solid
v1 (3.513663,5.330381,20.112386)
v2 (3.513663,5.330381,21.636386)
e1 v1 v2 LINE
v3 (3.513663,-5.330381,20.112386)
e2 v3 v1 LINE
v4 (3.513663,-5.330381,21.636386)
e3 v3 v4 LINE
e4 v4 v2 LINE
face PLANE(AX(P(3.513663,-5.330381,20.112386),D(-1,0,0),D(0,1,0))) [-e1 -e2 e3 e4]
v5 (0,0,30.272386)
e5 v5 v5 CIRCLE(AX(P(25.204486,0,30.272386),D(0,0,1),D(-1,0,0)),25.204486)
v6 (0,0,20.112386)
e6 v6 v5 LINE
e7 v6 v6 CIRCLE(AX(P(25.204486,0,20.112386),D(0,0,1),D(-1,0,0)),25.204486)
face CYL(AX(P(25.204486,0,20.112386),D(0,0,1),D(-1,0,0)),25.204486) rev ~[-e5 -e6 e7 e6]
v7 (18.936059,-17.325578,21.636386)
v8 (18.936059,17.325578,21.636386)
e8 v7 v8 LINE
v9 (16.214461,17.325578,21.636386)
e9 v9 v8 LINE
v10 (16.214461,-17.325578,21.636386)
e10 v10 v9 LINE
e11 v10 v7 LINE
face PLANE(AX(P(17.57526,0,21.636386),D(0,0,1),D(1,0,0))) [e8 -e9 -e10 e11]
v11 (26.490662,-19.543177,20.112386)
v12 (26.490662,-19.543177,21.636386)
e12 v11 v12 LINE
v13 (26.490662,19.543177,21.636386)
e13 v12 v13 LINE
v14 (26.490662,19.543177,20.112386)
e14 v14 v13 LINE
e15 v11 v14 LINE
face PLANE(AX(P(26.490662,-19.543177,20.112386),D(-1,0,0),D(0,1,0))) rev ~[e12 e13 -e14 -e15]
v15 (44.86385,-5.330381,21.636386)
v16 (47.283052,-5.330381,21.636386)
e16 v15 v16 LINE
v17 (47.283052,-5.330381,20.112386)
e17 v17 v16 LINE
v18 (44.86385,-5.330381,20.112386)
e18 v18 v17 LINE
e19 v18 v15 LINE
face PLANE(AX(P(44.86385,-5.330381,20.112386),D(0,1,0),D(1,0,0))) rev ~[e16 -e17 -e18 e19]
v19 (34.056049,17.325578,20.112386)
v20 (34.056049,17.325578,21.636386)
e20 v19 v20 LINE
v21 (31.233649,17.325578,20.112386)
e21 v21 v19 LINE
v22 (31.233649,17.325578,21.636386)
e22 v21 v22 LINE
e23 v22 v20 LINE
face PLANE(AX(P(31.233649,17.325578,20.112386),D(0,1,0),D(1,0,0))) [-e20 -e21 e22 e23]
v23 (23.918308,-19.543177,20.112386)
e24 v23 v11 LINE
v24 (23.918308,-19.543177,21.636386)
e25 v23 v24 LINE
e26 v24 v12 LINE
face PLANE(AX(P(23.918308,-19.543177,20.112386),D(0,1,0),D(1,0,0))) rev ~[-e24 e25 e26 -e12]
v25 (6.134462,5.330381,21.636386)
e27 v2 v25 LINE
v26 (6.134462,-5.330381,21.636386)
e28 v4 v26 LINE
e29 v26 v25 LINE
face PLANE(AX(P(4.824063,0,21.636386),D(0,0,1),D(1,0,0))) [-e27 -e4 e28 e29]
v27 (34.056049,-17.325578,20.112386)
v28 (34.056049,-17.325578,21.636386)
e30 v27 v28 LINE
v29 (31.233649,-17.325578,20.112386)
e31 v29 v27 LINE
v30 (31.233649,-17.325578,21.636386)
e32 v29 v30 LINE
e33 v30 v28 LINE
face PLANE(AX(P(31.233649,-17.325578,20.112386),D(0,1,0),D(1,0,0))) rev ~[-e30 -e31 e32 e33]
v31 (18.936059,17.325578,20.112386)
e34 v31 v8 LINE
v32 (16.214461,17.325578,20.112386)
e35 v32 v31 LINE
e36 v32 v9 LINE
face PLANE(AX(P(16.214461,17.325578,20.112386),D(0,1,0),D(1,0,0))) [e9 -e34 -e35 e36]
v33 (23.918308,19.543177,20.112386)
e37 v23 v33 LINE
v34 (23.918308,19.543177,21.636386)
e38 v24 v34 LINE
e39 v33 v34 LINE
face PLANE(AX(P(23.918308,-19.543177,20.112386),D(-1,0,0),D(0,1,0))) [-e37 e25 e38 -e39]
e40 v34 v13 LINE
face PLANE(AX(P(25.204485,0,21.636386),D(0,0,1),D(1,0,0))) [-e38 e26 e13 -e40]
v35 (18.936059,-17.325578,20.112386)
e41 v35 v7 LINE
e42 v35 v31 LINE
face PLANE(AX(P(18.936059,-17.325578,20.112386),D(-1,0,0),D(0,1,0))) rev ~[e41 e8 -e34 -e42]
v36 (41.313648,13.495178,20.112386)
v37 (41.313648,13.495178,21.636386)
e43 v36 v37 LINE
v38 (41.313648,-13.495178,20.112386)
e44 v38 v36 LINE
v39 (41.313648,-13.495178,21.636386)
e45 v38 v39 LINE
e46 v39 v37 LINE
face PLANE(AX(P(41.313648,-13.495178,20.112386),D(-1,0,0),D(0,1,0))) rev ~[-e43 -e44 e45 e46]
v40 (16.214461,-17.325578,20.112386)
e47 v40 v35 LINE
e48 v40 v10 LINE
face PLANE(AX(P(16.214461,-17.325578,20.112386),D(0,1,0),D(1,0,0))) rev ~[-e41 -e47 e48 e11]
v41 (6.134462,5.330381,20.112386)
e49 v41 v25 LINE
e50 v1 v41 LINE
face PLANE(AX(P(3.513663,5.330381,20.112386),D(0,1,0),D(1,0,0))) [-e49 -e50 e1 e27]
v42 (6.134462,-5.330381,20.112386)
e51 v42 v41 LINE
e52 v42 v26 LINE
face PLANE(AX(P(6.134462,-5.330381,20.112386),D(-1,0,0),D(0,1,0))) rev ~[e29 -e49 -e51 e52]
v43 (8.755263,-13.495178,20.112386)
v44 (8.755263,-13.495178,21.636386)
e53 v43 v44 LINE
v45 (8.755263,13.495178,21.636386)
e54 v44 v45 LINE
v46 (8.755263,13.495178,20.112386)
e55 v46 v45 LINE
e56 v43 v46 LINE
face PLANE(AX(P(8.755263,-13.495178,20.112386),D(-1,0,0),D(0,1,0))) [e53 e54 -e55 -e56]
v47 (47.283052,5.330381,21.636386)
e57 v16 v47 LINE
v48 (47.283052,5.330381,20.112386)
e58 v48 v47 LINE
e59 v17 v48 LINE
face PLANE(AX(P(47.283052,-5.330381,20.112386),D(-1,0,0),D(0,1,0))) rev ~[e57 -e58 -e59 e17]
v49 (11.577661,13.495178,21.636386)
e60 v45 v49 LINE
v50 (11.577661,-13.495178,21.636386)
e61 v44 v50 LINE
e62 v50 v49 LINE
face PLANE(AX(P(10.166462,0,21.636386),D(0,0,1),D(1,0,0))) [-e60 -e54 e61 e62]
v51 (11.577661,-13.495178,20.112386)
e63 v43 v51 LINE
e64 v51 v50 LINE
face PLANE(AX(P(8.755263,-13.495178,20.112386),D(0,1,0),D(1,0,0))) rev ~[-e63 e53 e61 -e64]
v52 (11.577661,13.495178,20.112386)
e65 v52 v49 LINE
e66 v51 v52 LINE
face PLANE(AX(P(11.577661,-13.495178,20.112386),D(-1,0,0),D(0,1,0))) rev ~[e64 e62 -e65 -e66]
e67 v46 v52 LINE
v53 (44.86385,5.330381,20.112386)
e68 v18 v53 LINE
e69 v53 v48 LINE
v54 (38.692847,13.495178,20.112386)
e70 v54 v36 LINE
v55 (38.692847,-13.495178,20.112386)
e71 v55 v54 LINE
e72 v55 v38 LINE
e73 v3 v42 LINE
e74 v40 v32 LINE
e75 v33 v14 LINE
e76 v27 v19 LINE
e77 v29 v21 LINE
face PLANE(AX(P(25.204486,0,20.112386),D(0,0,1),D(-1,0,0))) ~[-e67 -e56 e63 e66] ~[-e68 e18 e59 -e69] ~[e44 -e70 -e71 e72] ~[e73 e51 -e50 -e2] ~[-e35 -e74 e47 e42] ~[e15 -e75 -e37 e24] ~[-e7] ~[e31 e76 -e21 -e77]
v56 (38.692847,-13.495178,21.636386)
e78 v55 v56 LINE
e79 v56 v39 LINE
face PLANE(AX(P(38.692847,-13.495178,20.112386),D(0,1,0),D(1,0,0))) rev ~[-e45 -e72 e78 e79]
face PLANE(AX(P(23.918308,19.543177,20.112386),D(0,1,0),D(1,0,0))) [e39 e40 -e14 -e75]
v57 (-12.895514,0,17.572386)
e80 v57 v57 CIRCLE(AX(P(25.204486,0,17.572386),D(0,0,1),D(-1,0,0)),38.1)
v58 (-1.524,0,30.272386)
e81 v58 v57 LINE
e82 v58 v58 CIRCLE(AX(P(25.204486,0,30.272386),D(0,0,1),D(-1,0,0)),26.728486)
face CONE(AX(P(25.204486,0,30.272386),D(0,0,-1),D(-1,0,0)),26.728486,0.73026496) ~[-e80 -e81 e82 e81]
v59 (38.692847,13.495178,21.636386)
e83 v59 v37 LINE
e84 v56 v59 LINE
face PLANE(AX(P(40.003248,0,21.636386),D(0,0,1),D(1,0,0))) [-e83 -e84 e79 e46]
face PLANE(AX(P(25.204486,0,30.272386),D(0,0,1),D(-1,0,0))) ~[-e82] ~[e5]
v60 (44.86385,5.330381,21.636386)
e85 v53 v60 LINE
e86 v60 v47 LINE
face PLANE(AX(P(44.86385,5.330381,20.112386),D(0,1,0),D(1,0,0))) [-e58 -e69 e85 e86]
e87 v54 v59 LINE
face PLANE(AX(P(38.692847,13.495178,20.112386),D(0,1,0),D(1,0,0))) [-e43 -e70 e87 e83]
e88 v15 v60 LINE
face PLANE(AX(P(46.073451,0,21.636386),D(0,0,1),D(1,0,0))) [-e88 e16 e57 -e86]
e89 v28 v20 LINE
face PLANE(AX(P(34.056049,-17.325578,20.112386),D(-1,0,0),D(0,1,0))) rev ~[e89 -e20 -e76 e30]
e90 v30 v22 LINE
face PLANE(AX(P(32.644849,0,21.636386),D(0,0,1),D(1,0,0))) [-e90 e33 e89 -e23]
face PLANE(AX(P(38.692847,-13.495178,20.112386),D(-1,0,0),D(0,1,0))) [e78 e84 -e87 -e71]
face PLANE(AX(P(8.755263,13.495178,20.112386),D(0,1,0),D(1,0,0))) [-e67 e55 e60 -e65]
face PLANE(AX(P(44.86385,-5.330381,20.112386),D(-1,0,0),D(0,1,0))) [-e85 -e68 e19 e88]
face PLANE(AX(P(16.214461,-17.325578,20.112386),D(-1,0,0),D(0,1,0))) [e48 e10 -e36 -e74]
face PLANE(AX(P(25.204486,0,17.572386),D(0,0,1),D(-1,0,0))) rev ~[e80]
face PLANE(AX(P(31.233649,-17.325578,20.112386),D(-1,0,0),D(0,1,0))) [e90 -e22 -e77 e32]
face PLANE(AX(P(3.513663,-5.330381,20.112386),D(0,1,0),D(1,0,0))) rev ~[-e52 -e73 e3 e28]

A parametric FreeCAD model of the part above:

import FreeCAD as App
import Part
import Sketcher
from FreeCAD import Vector
Q = App.Units.Quantity


def add_polygon(sketch, points):
    """Adds a closed chain of lines whose ends are joined by coincident constraints."""
    first, n = sketch.GeometryCount, len(points)
    for a, b in zip(points, points[1:] + points[:1]):
        sketch.addGeometry(Part.LineSegment(App.Vector(*a, 0), App.Vector(*b, 0)), False)
    for i in range(n):
        sketch.addConstraint(Sketcher.Constraint("Coincident", first + i, 2, first + (i + 1) % n, 1))

doc = App.newDocument("Part")
params = doc.addObject("Spreadsheet::Sheet", "Params")
for row, (alias, value) in enumerate([
    ("sketch1_width", "1.5 in"),
    ("sketch1_height", "0.1 in"),
    ("sketch1_height2", "0.4 in"),
    ("sketch1_width2", "0.06 in"),
    ("revolution_angle", "360 deg"),
    ("pad1_length", "0.06 in"),
], start=1):
    params.set(f"A{row}", alias)
    params.set(f"B{row}", "=" + value)
    params.setAlias(f"B{row}", alias)

body = doc.addObject("PartDesign::Body", "Body")

# Sketch on XZ plane
sketch1 = body.newObject("Sketcher::SketchObject", "Sketch")
sketch1.AttachmentSupport = (doc.getObject("XZ_Plane"), [""])
sketch1.MapMode = "FlatFace"
add_polygon(sketch1, [(0, 30.3), (-1.5, 30.3), (-12.9, 17.6), (25.2, 17.6), (25.2, 20.1), (0, 20.1)])  # lines 0-5
sketch1.addGeometry(Part.LineSegment(Vector(25.2, 17.6, 0), Vector(25.2, 30.3, 0)), True)  # axis
sketch1.addConstraint([
    Sketcher.Constraint("Horizontal", 0),
    Sketcher.Constraint("Horizontal", 2),
    Sketcher.Constraint("Vertical", 3),
    Sketcher.Constraint("Horizontal", 4),
    Sketcher.Constraint("Vertical", 5),
    Sketcher.Constraint("Vertical", 6),
    Sketcher.Constraint("Coincident", 6, 1, 2, 2),
    Sketcher.Constraint("PointOnObject", 4, 2, -2),
    Sketcher.Constraint("Horizontal", 5, 2, 6, 2),
    Sketcher.Constraint("DistanceX", 2, 1, 2, 2, Q("1.5 in")),
    Sketcher.Constraint("DistanceY", 3, 1, 3, 2, Q("0.1 in")),
    Sketcher.Constraint("DistanceY", 5, 1, 5, 2, Q("0.4 in")),
    Sketcher.Constraint("DistanceX", 0, 2, 0, 1, Q("0.06 in")),
    Sketcher.Constraint("DistanceX", 4, 2, 4, 1, 25.204486),
    Sketcher.Constraint("DistanceY", -1, 1, 0, 2, 30.272386),
])
sketch1.setExpression("Constraints[15]", "Params.sketch1_width")
sketch1.setExpression("Constraints[16]", "Params.sketch1_height")
sketch1.setExpression("Constraints[17]", "Params.sketch1_height2")
sketch1.setExpression("Constraints[18]", "Params.sketch1_width2")
revolution = body.newObject("PartDesign::Revolution", "Revolution")
revolution.Profile = sketch1
revolution.ReferenceAxis = (sketch1, ["Axis0"])
revolution.setExpression("Angle", "Params.revolution_angle")

# Sketch on XY plane
sketch2 = body.newObject("Sketcher::SketchObject", "Sketch001")
sketch2.AttachmentSupport = (doc.getObject("XY_Plane"), [""])
sketch2.MapMode = "FlatFace"
sketch2.AttachmentOffset = App.Placement(Vector(0, 0, 20.112386), App.Rotation())
add_polygon(sketch2, [(23.9, 19.5), (23.9, -19.5), (26.5, -19.5), (26.5, 19.5)])  # lines 0-3
add_polygon(sketch2, [(31.2, 17.3), (31.2, -17.3), (34.1, -17.3), (34.1, 17.3)])  # lines 4-7
add_polygon(sketch2, [(38.7, 13.5), (38.7, -13.5), (41.3, -13.5), (41.3, 13.5)])  # lines 8-11
add_polygon(sketch2, [(44.9, 5.3), (44.9, -5.3), (47.3, -5.3), (47.3, 5.3)])  # lines 12-15
add_polygon(sketch2, [(16.2, 17.3), (16.2, -17.3), (18.9, -17.3), (18.9, 17.3)])  # lines 16-19
add_polygon(sketch2, [(8.8, 13.5), (8.8, -13.5), (11.6, -13.5), (11.6, 13.5)])  # lines 20-23
add_polygon(sketch2, [(3.5, 5.3), (3.5, -5.3), (6.1, -5.3), (6.1, 5.3)])  # lines 24-27
sketch2.addConstraint([
    Sketcher.Constraint("Vertical", 0),
    Sketcher.Constraint("Horizontal", 1),
    Sketcher.Constraint("Vertical", 2),
    Sketcher.Constraint("Horizontal", 3),
    Sketcher.Constraint("Vertical", 4),
    Sketcher.Constraint("Horizontal", 5),
    Sketcher.Constraint("Vertical", 6),
    Sketcher.Constraint("Horizontal", 7),
    Sketcher.Constraint("Vertical", 8),
    Sketcher.Constraint("Horizontal", 9),
    Sketcher.Constraint("Vertical", 10),
    Sketcher.Constraint("Horizontal", 11),
    Sketcher.Constraint("Vertical", 12),
    Sketcher.Constraint("Horizontal", 13),
    Sketcher.Constraint("Vertical", 14),
    Sketcher.Constraint("Horizontal", 15),
    Sketcher.Constraint("Vertical", 16),
    Sketcher.Constraint("Horizontal", 17),
    Sketcher.Constraint("Vertical", 18),
    Sketcher.Constraint("Horizontal", 19),
    Sketcher.Constraint("Vertical", 20),
    Sketcher.Constraint("Horizontal", 21),
    Sketcher.Constraint("Vertical", 22),
    Sketcher.Constraint("Horizontal", 23),
    Sketcher.Constraint("Vertical", 24),
    Sketcher.Constraint("Horizontal", 25),
    Sketcher.Constraint("Vertical", 26),
    Sketcher.Constraint("Horizontal", 27),
    Sketcher.Constraint("Horizontal", 5, 2, 16, 2),
    Sketcher.Constraint("Horizontal", 7, 2, 18, 2),
    Sketcher.Constraint("Horizontal", 9, 2, 20, 2),
    Sketcher.Constraint("Horizontal", 11, 2, 22, 2),
    Sketcher.Constraint("Horizontal", 13, 2, 24, 2),
    Sketcher.Constraint("Horizontal", 15, 2, 26, 2),
    Sketcher.Constraint("Equal", 7, 21),
    Sketcher.Constraint("DistanceX", 25, 2, 17, 2, Q("0.5039999 in")),
    Sketcher.Constraint("DistanceX", 5, 1, 5, 2, 2.822399),
    Sketcher.Constraint("DistanceX", 9, 1, 9, 2, 2.620801),
    Sketcher.Constraint("DistanceX", 17, 1, 17, 2, 2.721599),
    Sketcher.Constraint("DistanceX", 25, 1, 25, 2, 2.620799),
    Sketcher.Constraint("DistanceY", 1, 2, 4, 2, 2.217599),
    Sketcher.Constraint("DistanceY", 6, 2, 2, 2, 2.217599),
    Sketcher.Constraint("DistanceX", 5, 2, 8, 2, 4.636799),
    Sketcher.Constraint("DistanceY", 5, 2, 8, 2, 3.8304),
    Sketcher.Constraint("DistanceY", 10, 2, 6, 2, 3.8304),
    Sketcher.Constraint("DistanceX", 9, 2, 12, 2, 3.550201),
    Sketcher.Constraint("DistanceX", 16, 2, 1, 2, 10.276201),
    Sketcher.Constraint("DistanceX", 20, 2, 16, 2, 7.459198),
    Sketcher.Constraint("DistanceX", 1, 1, 1, 2, 2.572353),
    Sketcher.Constraint("DistanceX", 13, 1, 13, 2, 2.419203),
    Sketcher.Constraint("DistanceY", 0, 2, 0, 1, 39.086354),
    Sketcher.Constraint("DistanceY", 12, 2, 12, 1, 10.660762),
    Sketcher.Constraint("DistanceX", -1, 1, 0, 2, 23.918308),
    Sketcher.Constraint("DistanceX", -1, 1, 4, 2, 31.233649),
    Sketcher.Constraint("DistanceY", 4, 2, -1, 1, 17.325578),
    Sketcher.Constraint("DistanceY", 12, 2, -1, 1, 5.330381),
])
pad1 = body.newObject("PartDesign::Pad", "Pad")
pad1.Profile = sketch2
pad1.setExpression("Length", "Params.pad1_length")

doc.recompute()
